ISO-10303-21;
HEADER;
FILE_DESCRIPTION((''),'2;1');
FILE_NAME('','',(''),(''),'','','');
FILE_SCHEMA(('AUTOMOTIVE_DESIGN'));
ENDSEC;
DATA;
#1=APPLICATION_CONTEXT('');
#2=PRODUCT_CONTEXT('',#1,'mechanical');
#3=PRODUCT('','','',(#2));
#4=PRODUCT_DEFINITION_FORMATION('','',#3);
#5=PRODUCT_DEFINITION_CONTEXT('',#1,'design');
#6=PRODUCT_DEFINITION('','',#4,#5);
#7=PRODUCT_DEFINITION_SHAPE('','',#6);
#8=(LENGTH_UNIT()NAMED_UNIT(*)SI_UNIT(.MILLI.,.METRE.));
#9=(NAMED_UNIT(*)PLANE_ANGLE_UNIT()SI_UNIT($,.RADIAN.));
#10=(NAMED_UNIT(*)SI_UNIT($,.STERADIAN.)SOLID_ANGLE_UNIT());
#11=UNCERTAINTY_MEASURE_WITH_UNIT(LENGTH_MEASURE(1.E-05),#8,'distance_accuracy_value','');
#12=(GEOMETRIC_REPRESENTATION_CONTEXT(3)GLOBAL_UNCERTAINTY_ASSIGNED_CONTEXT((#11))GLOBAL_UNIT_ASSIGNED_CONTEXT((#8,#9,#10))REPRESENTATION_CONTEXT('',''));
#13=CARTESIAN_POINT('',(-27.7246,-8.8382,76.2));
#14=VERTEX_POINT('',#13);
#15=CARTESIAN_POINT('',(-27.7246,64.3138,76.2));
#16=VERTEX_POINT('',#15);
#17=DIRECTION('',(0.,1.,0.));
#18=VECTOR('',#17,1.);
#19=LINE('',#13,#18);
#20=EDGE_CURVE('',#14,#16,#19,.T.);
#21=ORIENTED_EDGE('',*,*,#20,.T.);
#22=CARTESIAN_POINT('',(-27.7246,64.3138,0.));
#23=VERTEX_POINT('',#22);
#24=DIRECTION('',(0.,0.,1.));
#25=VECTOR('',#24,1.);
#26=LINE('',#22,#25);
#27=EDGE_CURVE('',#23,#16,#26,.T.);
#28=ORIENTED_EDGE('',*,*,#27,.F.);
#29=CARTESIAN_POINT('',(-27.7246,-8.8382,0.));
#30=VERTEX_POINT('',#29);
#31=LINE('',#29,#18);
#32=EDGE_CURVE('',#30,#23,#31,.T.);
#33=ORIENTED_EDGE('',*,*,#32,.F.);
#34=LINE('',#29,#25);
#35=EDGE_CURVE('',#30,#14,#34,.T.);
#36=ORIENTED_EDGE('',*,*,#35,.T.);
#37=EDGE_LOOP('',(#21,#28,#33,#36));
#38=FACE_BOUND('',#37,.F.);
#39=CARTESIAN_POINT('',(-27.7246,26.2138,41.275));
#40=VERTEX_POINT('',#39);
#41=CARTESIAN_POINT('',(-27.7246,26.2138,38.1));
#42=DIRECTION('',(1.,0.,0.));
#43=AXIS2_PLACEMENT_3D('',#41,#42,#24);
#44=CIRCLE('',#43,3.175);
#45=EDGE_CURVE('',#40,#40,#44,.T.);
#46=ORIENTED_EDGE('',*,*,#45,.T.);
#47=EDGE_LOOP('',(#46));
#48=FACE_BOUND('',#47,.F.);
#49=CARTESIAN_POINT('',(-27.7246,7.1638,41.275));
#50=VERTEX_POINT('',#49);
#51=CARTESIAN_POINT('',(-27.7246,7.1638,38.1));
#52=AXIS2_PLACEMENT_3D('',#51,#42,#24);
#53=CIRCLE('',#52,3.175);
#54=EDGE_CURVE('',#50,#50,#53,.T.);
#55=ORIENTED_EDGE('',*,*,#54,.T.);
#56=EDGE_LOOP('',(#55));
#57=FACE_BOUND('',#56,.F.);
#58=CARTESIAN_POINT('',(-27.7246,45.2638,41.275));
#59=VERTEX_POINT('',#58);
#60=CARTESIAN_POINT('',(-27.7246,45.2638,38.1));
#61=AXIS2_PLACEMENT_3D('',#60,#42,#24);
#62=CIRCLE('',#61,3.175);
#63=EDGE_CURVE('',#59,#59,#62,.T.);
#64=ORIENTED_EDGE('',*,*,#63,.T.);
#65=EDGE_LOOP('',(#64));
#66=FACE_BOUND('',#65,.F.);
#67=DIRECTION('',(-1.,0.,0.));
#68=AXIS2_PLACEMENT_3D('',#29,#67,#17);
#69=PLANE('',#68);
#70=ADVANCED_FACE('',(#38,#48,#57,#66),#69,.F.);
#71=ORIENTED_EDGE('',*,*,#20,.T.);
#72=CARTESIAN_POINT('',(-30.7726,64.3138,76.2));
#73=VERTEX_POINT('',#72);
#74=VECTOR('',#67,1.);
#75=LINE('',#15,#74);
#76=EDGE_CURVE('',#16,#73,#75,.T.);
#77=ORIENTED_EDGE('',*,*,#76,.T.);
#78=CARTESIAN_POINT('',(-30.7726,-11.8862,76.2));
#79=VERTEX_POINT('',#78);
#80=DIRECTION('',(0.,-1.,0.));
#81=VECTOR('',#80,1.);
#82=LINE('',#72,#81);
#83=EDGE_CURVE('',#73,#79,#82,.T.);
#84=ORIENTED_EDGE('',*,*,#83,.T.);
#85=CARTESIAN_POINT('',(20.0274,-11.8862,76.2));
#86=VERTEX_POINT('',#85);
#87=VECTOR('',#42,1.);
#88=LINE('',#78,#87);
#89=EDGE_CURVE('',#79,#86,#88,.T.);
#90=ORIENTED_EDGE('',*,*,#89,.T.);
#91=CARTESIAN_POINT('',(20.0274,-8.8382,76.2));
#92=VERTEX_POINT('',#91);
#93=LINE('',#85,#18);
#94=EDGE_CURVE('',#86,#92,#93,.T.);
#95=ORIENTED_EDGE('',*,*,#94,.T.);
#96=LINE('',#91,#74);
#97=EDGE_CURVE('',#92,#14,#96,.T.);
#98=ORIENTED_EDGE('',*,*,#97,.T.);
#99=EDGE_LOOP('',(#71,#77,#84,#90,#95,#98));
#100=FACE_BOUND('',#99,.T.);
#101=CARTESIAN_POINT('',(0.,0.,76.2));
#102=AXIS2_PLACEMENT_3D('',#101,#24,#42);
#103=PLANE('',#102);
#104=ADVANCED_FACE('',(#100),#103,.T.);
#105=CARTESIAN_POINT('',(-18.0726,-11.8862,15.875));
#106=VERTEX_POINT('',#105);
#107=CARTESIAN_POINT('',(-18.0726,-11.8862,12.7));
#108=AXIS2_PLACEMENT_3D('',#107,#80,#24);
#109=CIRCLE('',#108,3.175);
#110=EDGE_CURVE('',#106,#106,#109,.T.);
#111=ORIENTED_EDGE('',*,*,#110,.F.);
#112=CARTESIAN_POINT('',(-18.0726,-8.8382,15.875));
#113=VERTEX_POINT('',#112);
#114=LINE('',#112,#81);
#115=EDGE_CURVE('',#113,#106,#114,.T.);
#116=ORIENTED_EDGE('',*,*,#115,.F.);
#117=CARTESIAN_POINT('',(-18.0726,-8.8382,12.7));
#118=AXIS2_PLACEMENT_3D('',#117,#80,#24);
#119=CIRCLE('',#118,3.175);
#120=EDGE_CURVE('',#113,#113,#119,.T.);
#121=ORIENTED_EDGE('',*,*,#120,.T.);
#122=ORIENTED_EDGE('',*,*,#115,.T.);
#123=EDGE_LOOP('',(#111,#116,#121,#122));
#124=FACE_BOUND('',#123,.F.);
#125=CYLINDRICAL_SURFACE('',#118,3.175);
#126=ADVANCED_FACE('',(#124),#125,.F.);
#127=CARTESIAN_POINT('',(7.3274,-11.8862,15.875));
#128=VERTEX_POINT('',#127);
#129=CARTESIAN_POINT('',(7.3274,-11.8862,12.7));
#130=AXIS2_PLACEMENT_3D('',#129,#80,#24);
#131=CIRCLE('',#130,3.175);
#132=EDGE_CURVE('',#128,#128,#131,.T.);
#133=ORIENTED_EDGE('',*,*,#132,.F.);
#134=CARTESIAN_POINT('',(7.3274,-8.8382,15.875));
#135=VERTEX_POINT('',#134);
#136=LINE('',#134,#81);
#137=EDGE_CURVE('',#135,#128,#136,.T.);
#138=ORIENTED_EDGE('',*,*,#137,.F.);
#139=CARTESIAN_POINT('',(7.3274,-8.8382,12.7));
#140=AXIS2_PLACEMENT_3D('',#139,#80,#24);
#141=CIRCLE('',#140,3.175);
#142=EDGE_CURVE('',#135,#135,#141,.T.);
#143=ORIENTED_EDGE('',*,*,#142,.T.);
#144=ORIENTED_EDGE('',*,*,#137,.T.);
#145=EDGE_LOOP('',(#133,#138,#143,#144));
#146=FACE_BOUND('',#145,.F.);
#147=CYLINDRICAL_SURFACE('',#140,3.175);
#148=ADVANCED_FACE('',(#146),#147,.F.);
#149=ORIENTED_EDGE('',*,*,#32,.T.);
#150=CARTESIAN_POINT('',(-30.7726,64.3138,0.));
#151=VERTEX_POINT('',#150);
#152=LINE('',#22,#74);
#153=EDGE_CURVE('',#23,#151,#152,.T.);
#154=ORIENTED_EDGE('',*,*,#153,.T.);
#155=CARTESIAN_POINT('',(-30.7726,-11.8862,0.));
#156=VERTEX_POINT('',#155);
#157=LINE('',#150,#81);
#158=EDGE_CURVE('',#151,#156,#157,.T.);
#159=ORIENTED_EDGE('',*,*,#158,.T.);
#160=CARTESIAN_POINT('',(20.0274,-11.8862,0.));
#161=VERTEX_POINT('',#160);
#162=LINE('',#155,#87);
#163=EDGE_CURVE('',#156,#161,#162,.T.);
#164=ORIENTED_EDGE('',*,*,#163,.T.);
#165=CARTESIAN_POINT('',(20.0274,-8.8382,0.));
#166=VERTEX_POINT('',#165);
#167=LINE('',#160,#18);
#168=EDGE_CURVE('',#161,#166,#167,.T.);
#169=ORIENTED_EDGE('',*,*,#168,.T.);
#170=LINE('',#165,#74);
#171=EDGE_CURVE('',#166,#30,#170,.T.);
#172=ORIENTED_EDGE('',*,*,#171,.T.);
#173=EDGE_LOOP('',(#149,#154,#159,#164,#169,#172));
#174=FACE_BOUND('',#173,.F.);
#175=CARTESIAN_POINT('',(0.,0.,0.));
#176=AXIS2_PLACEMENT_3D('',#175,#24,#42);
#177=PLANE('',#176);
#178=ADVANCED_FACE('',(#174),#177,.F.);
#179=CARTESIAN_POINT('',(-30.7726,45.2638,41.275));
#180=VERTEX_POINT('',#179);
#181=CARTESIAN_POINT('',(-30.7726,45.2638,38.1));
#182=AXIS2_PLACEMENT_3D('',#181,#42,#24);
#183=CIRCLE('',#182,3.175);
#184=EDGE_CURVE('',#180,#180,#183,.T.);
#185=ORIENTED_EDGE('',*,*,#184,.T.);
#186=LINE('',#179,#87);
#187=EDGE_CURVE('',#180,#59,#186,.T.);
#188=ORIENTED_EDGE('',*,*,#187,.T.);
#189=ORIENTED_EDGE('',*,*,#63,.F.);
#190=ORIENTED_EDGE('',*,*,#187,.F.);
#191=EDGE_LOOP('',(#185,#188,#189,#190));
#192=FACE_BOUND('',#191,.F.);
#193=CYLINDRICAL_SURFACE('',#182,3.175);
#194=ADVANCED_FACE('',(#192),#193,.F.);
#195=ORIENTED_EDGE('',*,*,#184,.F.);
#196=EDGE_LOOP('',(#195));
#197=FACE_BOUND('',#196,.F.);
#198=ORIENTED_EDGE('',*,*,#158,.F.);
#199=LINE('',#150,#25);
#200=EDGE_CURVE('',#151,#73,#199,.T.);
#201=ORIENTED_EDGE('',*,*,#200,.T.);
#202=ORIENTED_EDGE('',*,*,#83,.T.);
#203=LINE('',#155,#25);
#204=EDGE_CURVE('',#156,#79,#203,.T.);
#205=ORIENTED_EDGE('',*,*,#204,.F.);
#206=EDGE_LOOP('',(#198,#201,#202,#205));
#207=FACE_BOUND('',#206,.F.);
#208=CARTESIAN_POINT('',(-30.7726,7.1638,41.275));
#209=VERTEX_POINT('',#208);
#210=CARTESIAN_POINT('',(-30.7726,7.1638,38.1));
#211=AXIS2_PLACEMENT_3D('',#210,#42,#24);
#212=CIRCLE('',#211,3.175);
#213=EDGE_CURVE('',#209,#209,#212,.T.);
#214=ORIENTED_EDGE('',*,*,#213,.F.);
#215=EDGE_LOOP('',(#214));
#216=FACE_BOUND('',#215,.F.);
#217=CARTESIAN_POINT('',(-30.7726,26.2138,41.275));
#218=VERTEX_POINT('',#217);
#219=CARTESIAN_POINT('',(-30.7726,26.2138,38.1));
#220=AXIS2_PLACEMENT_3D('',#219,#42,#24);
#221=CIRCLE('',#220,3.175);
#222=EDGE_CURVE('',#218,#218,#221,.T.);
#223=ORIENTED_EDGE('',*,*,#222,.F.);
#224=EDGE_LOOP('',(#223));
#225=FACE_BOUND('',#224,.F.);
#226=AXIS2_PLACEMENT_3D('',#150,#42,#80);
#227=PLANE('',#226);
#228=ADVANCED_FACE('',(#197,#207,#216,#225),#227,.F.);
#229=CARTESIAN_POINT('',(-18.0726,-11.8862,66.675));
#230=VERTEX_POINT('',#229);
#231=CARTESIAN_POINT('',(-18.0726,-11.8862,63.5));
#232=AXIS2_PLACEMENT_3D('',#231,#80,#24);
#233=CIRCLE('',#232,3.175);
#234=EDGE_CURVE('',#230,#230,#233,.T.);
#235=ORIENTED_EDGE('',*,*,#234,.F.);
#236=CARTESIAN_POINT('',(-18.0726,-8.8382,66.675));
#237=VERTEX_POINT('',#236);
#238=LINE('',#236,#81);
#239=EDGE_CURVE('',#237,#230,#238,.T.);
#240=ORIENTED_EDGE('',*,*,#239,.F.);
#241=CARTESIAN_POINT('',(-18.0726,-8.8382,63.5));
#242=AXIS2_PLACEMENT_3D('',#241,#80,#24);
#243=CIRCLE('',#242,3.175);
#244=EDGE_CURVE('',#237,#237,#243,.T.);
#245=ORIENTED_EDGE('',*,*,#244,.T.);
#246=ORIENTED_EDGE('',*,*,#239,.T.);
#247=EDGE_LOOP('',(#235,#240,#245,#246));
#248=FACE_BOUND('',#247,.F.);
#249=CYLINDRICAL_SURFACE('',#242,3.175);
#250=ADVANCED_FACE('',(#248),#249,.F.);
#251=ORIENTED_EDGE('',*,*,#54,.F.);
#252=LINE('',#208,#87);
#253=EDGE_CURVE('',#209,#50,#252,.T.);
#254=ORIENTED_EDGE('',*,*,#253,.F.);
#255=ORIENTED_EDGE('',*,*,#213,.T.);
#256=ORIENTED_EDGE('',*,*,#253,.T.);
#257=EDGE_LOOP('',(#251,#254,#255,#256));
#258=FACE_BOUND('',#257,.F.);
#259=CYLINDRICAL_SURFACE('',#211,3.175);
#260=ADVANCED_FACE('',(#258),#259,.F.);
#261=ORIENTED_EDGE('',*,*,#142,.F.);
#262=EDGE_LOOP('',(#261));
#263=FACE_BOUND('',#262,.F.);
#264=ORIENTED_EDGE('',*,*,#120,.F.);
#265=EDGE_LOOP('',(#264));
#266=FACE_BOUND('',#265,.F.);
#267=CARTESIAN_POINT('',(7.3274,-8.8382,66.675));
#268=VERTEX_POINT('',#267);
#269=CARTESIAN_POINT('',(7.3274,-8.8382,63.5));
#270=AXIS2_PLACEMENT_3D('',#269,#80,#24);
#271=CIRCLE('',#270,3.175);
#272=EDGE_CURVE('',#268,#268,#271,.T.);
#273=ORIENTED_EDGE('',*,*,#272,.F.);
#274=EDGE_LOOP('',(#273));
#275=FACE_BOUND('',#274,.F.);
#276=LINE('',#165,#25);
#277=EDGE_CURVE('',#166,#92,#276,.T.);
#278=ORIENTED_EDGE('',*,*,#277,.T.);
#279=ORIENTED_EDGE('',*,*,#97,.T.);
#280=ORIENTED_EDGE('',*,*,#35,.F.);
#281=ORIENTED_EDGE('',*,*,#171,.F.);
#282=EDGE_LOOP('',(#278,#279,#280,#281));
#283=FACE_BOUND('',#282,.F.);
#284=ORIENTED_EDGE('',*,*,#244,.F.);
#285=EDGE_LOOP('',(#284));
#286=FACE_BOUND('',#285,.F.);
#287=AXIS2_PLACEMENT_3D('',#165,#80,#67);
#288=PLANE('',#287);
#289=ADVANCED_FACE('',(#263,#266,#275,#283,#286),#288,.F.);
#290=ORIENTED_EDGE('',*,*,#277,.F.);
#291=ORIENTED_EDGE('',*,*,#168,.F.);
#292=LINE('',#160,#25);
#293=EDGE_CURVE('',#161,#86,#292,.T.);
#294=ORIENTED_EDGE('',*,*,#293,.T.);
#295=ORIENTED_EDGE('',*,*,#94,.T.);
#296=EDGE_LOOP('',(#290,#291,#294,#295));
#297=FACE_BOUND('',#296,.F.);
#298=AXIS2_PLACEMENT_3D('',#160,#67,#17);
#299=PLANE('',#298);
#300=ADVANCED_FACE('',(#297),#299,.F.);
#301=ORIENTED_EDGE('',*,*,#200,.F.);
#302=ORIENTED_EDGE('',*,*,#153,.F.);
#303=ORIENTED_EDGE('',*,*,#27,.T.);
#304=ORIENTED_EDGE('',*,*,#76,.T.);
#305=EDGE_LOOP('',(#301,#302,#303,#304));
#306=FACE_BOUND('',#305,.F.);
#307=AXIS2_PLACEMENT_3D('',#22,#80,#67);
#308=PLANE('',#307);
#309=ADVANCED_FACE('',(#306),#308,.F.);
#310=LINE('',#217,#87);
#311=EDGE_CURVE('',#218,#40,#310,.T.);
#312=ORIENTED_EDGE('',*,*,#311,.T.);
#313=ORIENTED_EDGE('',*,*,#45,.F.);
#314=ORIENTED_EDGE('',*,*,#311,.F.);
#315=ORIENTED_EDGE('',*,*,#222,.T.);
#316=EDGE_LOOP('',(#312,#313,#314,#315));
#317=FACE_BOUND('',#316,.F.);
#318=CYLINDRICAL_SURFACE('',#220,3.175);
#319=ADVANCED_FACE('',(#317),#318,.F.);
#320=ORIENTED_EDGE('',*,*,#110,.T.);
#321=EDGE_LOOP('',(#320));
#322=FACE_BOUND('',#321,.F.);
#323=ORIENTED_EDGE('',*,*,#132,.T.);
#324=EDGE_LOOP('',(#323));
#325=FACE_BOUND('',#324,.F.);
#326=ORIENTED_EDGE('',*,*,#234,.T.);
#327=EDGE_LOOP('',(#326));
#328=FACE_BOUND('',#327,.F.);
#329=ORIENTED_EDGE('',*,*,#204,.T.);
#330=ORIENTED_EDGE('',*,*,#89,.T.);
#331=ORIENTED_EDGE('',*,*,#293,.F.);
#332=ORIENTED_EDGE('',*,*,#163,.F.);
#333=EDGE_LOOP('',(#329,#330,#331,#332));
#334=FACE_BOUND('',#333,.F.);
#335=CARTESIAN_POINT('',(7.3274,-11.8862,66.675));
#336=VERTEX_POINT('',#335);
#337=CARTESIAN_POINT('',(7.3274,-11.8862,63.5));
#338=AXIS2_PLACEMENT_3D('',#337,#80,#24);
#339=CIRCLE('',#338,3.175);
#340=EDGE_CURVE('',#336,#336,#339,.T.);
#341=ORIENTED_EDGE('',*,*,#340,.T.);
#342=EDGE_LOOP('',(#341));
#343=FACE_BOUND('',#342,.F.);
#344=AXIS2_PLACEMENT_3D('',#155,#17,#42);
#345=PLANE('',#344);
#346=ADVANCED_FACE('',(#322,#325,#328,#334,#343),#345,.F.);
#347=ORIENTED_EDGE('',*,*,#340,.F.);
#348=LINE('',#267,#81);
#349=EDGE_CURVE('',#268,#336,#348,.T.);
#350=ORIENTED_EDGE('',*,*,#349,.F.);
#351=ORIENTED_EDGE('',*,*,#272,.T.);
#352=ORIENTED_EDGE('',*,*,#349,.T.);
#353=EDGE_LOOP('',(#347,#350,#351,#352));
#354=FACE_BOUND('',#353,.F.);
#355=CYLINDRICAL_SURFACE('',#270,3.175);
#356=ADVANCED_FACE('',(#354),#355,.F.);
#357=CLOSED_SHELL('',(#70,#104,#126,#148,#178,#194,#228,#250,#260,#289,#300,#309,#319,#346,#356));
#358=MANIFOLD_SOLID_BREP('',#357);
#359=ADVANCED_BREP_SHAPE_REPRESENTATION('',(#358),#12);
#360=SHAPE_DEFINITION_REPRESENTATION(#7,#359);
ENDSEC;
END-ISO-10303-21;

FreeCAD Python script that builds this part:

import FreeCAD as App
import Part
import Sketcher
Q = App.Units.Quantity


def add_polygon(sketch, points):
    """Adds a closed chain of lines whose ends are joined by coincident constraints."""
    first, n = sketch.GeometryCount, len(points)
    for a, b in zip(points, points[1:] + points[:1]):
        sketch.addGeometry(Part.LineSegment(App.Vector(*a, 0), App.Vector(*b, 0)), False)
    for i in range(n):
        sketch.addConstraint(Sketcher.Constraint("Coincident", first + i, 2, first + (i + 1) % n, 1))

doc = App.newDocument("Part")
body = doc.addObject("PartDesign::Body", "Body")

sketch1 = doc.addObject("Sketcher::SketchObject", "Sketch")
body.addObject(sketch1)
sketch1.AttachmentSupport = (doc.XY_Plane, [""])
sketch1.MapMode = "FlatFace"
add_polygon(sketch1, [(-27.7, 64.3), (-30.8, 64.3), (-30.8, -11.9), (20, -11.9), (20, -8.8), (-27.7, -8.8)])
sketch1.addConstraint([
    Sketcher.Constraint("Horizontal", 0),
    Sketcher.Constraint("Vertical", 1),
    Sketcher.Constraint("Horizontal", 2),
    Sketcher.Constraint("Vertical", 3),
    Sketcher.Constraint("Horizontal", 4),
    Sketcher.Constraint("Vertical", 5),
    Sketcher.Constraint("Equal", 0, 3),
    Sketcher.Constraint("DistanceX", 2, 1, 2, 2, Q("2 in")),
    Sketcher.Constraint("DistanceY", 1, 2, 1, 1, Q("3 in")),
    Sketcher.Constraint("DistanceX", 0, 2, 0, 1, Q("0.12 in")),
    Sketcher.Constraint("DistanceX", 0, 2, -1, 1, 30.7726),
    Sketcher.Constraint("DistanceY", -1, 1, 0, 2, 64.3138),
])
pad1 = doc.addObject("PartDesign::Pad", "Pad")
body.addObject(pad1)
pad1.Profile = sketch1
pad1.Length = Q("3 in")

sketch2 = doc.addObject("Sketcher::SketchObject", "Sketch001")
body.addObject(sketch2)
sketch2.AttachmentSupport = (doc.YZ_Plane, [""])
sketch2.MapMode = "FlatFace"
sketch2.AttachmentOffset = App.Placement(App.Vector(0, 0, -30.7726), App.Rotation())
sketch2.addGeometry([
    Part.Circle(App.Vector(45.3, 38.1, 0), App.Vector(0, 0, 1), 3.2),
    Part.Circle(App.Vector(26.2, 38.1, 0), App.Vector(0, 0, 1), 3.2),
    Part.Circle(App.Vector(7.2, 38.1, 0), App.Vector(0, 0, 1), 3.2),
], False)
sketch2.addConstraint([
    Sketcher.Constraint("Equal", 0, 1),
    Sketcher.Constraint("Equal", 1, 2),
    Sketcher.Constraint("Horizontal", 0, 3, 1, 3),
    Sketcher.Constraint("Horizontal", 1, 3, 2, 3),
    Sketcher.Constraint("Diameter", 0, Q("0.25 in")),
    Sketcher.Constraint("DistanceY", -1, 1, 0, 3, Q("1.5 in")),
    Sketcher.Constraint("DistanceX", 2, 3, 0, 3, Q("1.5 in")),
    Sketcher.Constraint("DistanceX", 1, 3, 0, 3, Q("0.75 in")),
    Sketcher.Constraint("DistanceX", -1, 1, 0, 3, 45.2638),
])
doc.recompute()
hole = doc.addObject("PartDesign::Hole", "Hole")
body.addObject(hole)
hole.Profile = sketch2
hole.ThreadType = "None"
hole.Diameter = Q("0.25 in")
hole.DepthType = "Dimension"
hole.Depth = Q("1 in")
hole.DrillPoint = "Angled"
hole.DrillPointAngle = 118
hole.Reversed = True

sketch3 = doc.addObject("Sketcher::SketchObject", "Sketch002")
body.addObject(sketch3)
sketch3.AttachmentSupport = (doc.XZ_Plane, [""])
sketch3.MapMode = "FlatFace"
sketch3.AttachmentOffset = App.Placement(App.Vector(0, 0, 8.8382), App.Rotation())
sketch3.addGeometry([
    Part.Circle(App.Vector(-18.1, 63.5, 0), App.Vector(0, 0, 1), 3.2),
    Part.Circle(App.Vector(-18.1, 12.7, 0), App.Vector(0, 0, 1), 3.2),
    Part.Circle(App.Vector(7.3, 12.7, 0), App.Vector(0, 0, 1), 3.2),
    Part.Circle(App.Vector(7.3, 63.5, 0), App.Vector(0, 0, 1), 3.2),
], False)
sketch3.addConstraint([
    Sketcher.Constraint("Equal", 0, 1),
    Sketcher.Constraint("Equal", 1, 2),
    Sketcher.Constraint("Equal", 2, 3),
    Sketcher.Constraint("Horizontal", 1, 3, 2, 3),
    Sketcher.Constraint("Horizontal", 0, 3, 3, 3),
    Sketcher.Constraint("Vertical", 0, 3, 1, 3),
    Sketcher.Constraint("Vertical", 2, 3, 3, 3),
    Sketcher.Constraint("Diameter", 0, Q("0.25 in")),
    Sketcher.Constraint("DistanceY", 1, 3, 0, 3, Q("2 in")),
    Sketcher.Constraint("DistanceX", 1, 3, 2, 3, Q("1 in")),
    Sketcher.Constraint("DistanceY", -1, 1, 0, 3, Q("2.5 in")),
    Sketcher.Constraint("DistanceX", 0, 3, -1, 1, 18.0726),
])
doc.recompute()
hole2 = doc.addObject("PartDesign::Hole", "Hole001")
body.addObject(hole2)
hole2.Profile = sketch3
hole2.ThreadType = "None"
hole2.Diameter = Q("0.25 in")
hole2.DepthType = "Dimension"
hole2.Depth = Q("1 in")
hole2.DrillPoint = "Angled"
hole2.DrillPointAngle = 118
hole2.Reversed = True

doc.recompute()
